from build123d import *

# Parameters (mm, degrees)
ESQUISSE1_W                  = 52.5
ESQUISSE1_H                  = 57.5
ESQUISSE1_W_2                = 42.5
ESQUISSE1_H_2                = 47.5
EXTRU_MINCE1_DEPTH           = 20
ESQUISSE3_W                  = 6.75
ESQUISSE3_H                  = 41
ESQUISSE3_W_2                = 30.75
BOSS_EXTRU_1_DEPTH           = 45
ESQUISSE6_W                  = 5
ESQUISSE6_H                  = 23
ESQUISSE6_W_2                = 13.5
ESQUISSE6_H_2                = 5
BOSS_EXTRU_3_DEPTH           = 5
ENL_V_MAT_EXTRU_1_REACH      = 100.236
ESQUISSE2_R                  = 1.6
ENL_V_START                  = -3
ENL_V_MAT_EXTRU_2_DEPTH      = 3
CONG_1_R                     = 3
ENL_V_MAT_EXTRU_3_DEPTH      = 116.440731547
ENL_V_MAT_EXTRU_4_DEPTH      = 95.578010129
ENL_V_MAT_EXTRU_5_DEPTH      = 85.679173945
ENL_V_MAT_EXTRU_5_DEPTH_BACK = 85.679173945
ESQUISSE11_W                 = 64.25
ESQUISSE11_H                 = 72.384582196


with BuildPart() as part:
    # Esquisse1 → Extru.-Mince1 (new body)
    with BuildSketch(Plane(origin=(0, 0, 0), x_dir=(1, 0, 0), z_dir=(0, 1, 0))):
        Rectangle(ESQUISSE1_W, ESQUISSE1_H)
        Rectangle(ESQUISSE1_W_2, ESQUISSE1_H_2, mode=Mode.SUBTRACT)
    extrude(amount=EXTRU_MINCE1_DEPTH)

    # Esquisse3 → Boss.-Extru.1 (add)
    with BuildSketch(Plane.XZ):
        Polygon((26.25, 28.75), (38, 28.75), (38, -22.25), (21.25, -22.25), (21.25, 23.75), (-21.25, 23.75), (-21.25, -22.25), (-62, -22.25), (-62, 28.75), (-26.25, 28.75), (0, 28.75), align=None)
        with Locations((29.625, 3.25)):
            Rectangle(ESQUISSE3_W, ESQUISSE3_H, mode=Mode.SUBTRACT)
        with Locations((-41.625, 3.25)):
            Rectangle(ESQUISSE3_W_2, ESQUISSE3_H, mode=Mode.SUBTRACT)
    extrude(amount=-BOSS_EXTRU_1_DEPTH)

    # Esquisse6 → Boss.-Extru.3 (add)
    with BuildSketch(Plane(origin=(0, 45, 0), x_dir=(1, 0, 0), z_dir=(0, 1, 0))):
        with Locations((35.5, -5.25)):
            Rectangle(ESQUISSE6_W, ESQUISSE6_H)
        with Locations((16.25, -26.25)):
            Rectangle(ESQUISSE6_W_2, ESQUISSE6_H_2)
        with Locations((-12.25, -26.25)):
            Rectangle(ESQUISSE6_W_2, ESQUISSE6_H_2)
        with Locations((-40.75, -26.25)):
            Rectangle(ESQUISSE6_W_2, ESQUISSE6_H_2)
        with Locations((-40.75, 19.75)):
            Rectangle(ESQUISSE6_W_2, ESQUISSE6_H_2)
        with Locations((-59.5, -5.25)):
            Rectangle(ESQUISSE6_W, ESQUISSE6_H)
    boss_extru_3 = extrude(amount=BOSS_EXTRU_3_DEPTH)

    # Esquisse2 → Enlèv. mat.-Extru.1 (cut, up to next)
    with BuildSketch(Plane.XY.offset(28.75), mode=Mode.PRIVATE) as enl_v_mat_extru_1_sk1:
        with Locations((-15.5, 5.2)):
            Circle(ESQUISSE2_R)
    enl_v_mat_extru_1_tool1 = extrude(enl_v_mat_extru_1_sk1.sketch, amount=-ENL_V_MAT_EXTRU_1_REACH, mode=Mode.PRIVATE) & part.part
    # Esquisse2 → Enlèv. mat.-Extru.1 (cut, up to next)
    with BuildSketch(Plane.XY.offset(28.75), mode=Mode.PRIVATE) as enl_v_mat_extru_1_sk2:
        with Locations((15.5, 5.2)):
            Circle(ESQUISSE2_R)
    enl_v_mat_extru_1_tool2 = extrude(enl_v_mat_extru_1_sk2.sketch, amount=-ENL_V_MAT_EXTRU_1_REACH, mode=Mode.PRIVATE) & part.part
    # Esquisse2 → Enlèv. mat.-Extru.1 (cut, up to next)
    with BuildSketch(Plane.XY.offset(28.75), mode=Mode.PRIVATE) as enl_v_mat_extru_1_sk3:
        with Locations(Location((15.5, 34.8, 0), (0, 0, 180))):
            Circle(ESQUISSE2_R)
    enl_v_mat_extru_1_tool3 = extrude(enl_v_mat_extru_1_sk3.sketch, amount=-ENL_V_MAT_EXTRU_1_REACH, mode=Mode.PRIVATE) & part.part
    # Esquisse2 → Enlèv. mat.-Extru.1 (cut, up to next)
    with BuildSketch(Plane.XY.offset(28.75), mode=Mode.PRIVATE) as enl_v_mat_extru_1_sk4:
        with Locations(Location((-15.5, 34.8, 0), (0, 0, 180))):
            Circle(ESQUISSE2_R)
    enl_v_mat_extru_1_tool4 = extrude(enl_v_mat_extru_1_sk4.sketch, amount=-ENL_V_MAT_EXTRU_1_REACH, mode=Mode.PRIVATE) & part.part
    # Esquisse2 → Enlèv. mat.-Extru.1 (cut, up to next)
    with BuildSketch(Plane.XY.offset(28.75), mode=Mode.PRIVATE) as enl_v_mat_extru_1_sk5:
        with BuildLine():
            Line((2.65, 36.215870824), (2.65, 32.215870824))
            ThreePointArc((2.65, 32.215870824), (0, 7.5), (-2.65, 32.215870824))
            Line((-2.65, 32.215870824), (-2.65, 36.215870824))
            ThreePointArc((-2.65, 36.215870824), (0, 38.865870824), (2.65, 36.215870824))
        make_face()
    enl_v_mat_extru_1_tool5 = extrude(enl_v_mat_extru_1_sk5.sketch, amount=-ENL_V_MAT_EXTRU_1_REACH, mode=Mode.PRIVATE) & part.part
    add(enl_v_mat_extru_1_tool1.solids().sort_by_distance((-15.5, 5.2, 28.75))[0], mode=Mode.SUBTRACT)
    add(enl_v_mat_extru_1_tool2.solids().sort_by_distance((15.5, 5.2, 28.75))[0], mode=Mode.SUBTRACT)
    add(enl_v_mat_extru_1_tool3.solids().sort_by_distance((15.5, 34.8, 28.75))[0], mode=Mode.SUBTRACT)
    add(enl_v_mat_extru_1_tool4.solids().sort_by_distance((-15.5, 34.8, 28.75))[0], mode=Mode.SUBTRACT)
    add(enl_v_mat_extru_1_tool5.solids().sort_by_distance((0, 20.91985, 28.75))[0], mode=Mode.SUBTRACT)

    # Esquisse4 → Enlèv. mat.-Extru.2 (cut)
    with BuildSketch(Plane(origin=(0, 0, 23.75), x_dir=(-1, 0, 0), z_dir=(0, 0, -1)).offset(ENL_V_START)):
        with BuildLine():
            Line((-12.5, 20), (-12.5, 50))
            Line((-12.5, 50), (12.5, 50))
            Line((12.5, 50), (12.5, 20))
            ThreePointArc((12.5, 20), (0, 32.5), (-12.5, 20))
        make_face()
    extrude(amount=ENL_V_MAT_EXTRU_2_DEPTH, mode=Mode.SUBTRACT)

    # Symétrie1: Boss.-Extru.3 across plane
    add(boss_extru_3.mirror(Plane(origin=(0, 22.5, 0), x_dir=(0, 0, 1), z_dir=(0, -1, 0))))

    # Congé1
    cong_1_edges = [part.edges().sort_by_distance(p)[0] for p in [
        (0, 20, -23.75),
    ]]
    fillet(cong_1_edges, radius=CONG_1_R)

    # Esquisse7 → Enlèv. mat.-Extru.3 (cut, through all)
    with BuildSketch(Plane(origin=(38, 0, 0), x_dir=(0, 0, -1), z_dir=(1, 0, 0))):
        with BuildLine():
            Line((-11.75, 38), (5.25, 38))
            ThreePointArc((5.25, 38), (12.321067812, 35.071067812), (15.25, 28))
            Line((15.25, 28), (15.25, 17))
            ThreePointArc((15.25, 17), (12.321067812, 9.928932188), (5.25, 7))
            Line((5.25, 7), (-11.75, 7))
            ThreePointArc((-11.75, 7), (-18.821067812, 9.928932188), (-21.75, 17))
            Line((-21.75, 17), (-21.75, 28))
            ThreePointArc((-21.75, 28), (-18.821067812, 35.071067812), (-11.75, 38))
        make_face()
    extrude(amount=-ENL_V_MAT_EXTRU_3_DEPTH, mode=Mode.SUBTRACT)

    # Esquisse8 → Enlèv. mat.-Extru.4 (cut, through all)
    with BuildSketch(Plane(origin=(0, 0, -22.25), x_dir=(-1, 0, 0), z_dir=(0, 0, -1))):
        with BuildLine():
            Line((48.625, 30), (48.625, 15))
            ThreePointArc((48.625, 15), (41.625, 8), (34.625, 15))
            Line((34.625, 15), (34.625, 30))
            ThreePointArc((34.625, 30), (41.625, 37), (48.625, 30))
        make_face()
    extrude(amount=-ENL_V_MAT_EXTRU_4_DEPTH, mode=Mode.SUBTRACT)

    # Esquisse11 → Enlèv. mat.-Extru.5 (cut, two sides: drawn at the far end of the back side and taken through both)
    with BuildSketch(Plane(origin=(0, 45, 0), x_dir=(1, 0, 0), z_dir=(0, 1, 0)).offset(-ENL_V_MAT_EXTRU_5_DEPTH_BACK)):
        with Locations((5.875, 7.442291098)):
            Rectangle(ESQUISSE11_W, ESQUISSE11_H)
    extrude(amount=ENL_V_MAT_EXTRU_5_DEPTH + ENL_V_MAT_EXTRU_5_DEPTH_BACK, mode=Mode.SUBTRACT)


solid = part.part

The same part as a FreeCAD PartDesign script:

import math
import FreeCAD as App
import Part
import Sketcher
Q = App.Units.Quantity


def edges_at(feature, points):
    """Names of the edges that pass closest to the given points."""
    edges = feature.Shape.Edges
    near = lambda p: min(range(len(edges)), key=lambda i: edges[i].distToShape(Part.Vertex(*p))[0])
    return sorted({f"Edge{near(p) + 1}" for p in points})

doc = App.newDocument("Part")
body = doc.addObject("PartDesign::Body", "Body")

sketch1 = body.newObject("Sketcher::SketchObject", "Sketch")
sketch1.AttachmentSupport = (doc.getObject("XZ_Plane"), [""])
sketch1.MapMode = "FlatFace"
sketch1.addGeometry([
    Part.LineSegment(App.Vector(-26, -29, 0), App.Vector(-26, 29, 0)),
    Part.LineSegment(App.Vector(-26, 29, 0), App.Vector(26, 29, 0)),
    Part.LineSegment(App.Vector(26, 29, 0), App.Vector(26, -29, 0)),
    Part.LineSegment(App.Vector(26, -29, 0), App.Vector(-26, -29, 0)),
    Part.LineSegment(App.Vector(21, 24, 0), App.Vector(-21, 24, 0)),
    Part.LineSegment(App.Vector(-21, 24, 0), App.Vector(-21, -24, 0)),
    Part.LineSegment(App.Vector(-21, -24, 0), App.Vector(21, -24, 0)),
    Part.LineSegment(App.Vector(21, -24, 0), App.Vector(21, 24, 0)),
], False)
sketch1.addConstraint([
    Sketcher.Constraint("Coincident", 0, 2, 1, 1),
    Sketcher.Constraint("Coincident", 1, 2, 2, 1),
    Sketcher.Constraint("Coincident", 2, 2, 3, 1),
    Sketcher.Constraint("Coincident", 3, 2, 0, 1),
    Sketcher.Constraint("Coincident", 4, 2, 5, 1),
    Sketcher.Constraint("Coincident", 5, 2, 6, 1),
    Sketcher.Constraint("Coincident", 6, 2, 7, 1),
    Sketcher.Constraint("Coincident", 7, 2, 4, 1),
    Sketcher.Constraint("Vertical", 0),
    Sketcher.Constraint("Horizontal", 1),
    Sketcher.Constraint("Vertical", 2),
    Sketcher.Constraint("Horizontal", 3),
    Sketcher.Constraint("Horizontal", 4),
    Sketcher.Constraint("Vertical", 5),
    Sketcher.Constraint("Horizontal", 6),
    Sketcher.Constraint("Vertical", 7),
    Sketcher.Constraint("Symmetric", 0, 2, 2, 2, -1, 1),
    Sketcher.Constraint("Symmetric", 4, 2, 6, 2, -1, 1),
    Sketcher.Constraint("DistanceX", 1, 1, 1, 2, Q("52.5 mm")),
    Sketcher.Constraint("DistanceX", 4, 2, 4, 1, Q("42.5 mm")),
    Sketcher.Constraint("DistanceY", 0, 1, 0, 2, Q("57.5 mm")),
    Sketcher.Constraint("DistanceY", 5, 2, 5, 1, Q("47.5 mm")),
])
pad1 = body.newObject("PartDesign::Pad", "Pad")
pad1.Profile = sketch1
pad1.Length = 20
pad1.Reversed = True

sketch2 = body.newObject("Sketcher::SketchObject", "Sketch001")
sketch2.AttachmentSupport = (doc.getObject("XZ_Plane"), [""])
sketch2.MapMode = "FlatFace"
sketch2.addGeometry([
    Part.LineSegment(App.Vector(38, 29, 0), App.Vector(-62, 29, 0)),
    Part.LineSegment(App.Vector(-62, 29, 0), App.Vector(-62, -22, 0)),
    Part.LineSegment(App.Vector(-62, -22, 0), App.Vector(-21, -22, 0)),
    Part.LineSegment(App.Vector(-21, -22, 0), App.Vector(-21, 24, 0)),
    Part.LineSegment(App.Vector(-21, 24, 0), App.Vector(21, 24, 0)),
    Part.LineSegment(App.Vector(21, 24, 0), App.Vector(21, -22, 0)),
    Part.LineSegment(App.Vector(21, -22, 0), App.Vector(38, -22, 0)),
    Part.LineSegment(App.Vector(38, -22, 0), App.Vector(38, 29, 0)),
    Part.LineSegment(App.Vector(26, -17, 0), App.Vector(26, 24, 0)),
    Part.LineSegment(App.Vector(26, 24, 0), App.Vector(33, 24, 0)),
    Part.LineSegment(App.Vector(33, 24, 0), App.Vector(33, -17, 0)),
    Part.LineSegment(App.Vector(33, -17, 0), App.Vector(26, -17, 0)),
    Part.LineSegment(App.Vector(-57, -17, 0), App.Vector(-57, 24, 0)),
    Part.LineSegment(App.Vector(-57, 24, 0), App.Vector(-26, 24, 0)),
    Part.LineSegment(App.Vector(-26, 24, 0), App.Vector(-26, -17, 0)),
    Part.LineSegment(App.Vector(-26, -17, 0), App.Vector(-57, -17, 0)),
], False)
sketch2.addConstraint([
    Sketcher.Constraint("Coincident", 0, 2, 1, 1),
    Sketcher.Constraint("Coincident", 1, 2, 2, 1),
    Sketcher.Constraint("Coincident", 2, 2, 3, 1),
    Sketcher.Constraint("Coincident", 3, 2, 4, 1),
    Sketcher.Constraint("Coincident", 4, 2, 5, 1),
    Sketcher.Constraint("Coincident", 5, 2, 6, 1),
    Sketcher.Constraint("Coincident", 6, 2, 7, 1),
    Sketcher.Constraint("Coincident", 7, 2, 0, 1),
    Sketcher.Constraint("Coincident", 8, 2, 9, 1),
    Sketcher.Constraint("Coincident", 9, 2, 10, 1),
    Sketcher.Constraint("Coincident", 10, 2, 11, 1),
    Sketcher.Constraint("Coincident", 11, 2, 8, 1),
    Sketcher.Constraint("Coincident", 12, 2, 13, 1),
    Sketcher.Constraint("Coincident", 13, 2, 14, 1),
    Sketcher.Constraint("Coincident", 14, 2, 15, 1),
    Sketcher.Constraint("Coincident", 15, 2, 12, 1),
    Sketcher.Constraint("Horizontal", 0),
    Sketcher.Constraint("Vertical", 1),
    Sketcher.Constraint("Horizontal", 2),
    Sketcher.Constraint("Vertical", 3),
    Sketcher.Constraint("Horizontal", 4),
    Sketcher.Constraint("Vertical", 5),
    Sketcher.Constraint("Horizontal", 6),
    Sketcher.Constraint("Vertical", 7),
    Sketcher.Constraint("Vertical", 8),
    Sketcher.Constraint("Horizontal", 9),
    Sketcher.Constraint("Vertical", 10),
    Sketcher.Constraint("Horizontal", 11),
    Sketcher.Constraint("Vertical", 12),
    Sketcher.Constraint("Horizontal", 13),
    Sketcher.Constraint("Vertical", 14),
    Sketcher.Constraint("Horizontal", 15),
    Sketcher.Constraint("Symmetric", 2, 2, 5, 2, -2),
    Sketcher.Constraint("Symmetric", 8, 2, 13, 2, -2),
    Sketcher.Constraint("Horizontal", 4, 2, 8, 2),
    Sketcher.Constraint("Horizontal", 11, 2, 14, 2),
    Sketcher.Constraint("DistanceX", 0, 2, 0, 1, Q("100 mm")),
    Sketcher.Constraint("DistanceY", 1, 2, 1, 1, Q("51 mm")),
    Sketcher.Constraint("DistanceY", 3, 1, 3, 2, Q("46 mm")),
    Sketcher.Constraint("DistanceY", 8, 1, 8, 2, Q("41 mm")),
    Sketcher.Constraint("DistanceX", 4, 1, 4, 2, Q("42.5 mm")),
    Sketcher.Constraint("DistanceX", 0, 2, -1, 1, Q("62 mm")),
    Sketcher.Constraint("DistanceX", -1, 1, 9, 2, Q("33 mm")),
    Sketcher.Constraint("DistanceX", 12, 2, -1, 1, Q("57 mm")),
    Sketcher.Constraint("DistanceX", 4, 2, 8, 2, Q("5 mm")),
    Sketcher.Constraint("DistanceY", -1, 1, 0, 2, Q("28.75 mm")),
])
pad2 = body.newObject("PartDesign::Pad", "Pad001")
pad2.Profile = sketch2
pad2.Length = 45
pad2.Reversed = True

sketch3 = body.newObject("Sketcher::SketchObject", "Sketch002")
sketch3.AttachmentSupport = (doc.getObject("XZ_Plane"), [""])
sketch3.MapMode = "FlatFace"
sketch3.AttachmentOffset = App.Placement(App.Vector(0, 0, -45), App.Rotation())
sketch3.addGeometry([
    Part.LineSegment(App.Vector(33, -6, 0), App.Vector(33, 17, 0)),
    Part.LineSegment(App.Vector(33, 17, 0), App.Vector(38, 17, 0)),
    Part.LineSegment(App.Vector(38, 17, 0), App.Vector(38, -6, 0)),
    Part.LineSegment(App.Vector(38, -6, 0), App.Vector(33, -6, 0)),
    Part.LineSegment(App.Vector(10, 24, 0), App.Vector(10, 29, 0)),
    Part.LineSegment(App.Vector(10, 29, 0), App.Vector(23, 29, 0)),
    Part.LineSegment(App.Vector(23, 29, 0), App.Vector(23, 24, 0)),
    Part.LineSegment(App.Vector(23, 24, 0), App.Vector(10, 24, 0)),
    Part.LineSegment(App.Vector(-19, 24, 0), App.Vector(-19, 29, 0)),
    Part.LineSegment(App.Vector(-19, 29, 0), App.Vector(-6, 29, 0)),
    Part.LineSegment(App.Vector(-6, 29, 0), App.Vector(-6, 24, 0)),
    Part.LineSegment(App.Vector(-6, 24, 0), App.Vector(-19, 24, 0)),
    Part.LineSegment(App.Vector(-48, 24, 0), App.Vector(-48, 29, 0)),
    Part.LineSegment(App.Vector(-48, 29, 0), App.Vector(-34, 29, 0)),
    Part.LineSegment(App.Vector(-34, 29, 0), App.Vector(-34, 24, 0)),
    Part.LineSegment(App.Vector(-34, 24, 0), App.Vector(-48, 24, 0)),
    Part.LineSegment(App.Vector(-48, -22, 0), App.Vector(-48, -17, 0)),
    Part.LineSegment(App.Vector(-48, -17, 0), App.Vector(-34, -17, 0)),
    Part.LineSegment(App.Vector(-34, -17, 0), App.Vector(-34, -22, 0)),
    Part.LineSegment(App.Vector(-34, -22, 0), App.Vector(-48, -22, 0)),
    Part.LineSegment(App.Vector(-62, -6, 0), App.Vector(-62, 17, 0)),
    Part.LineSegment(App.Vector(-62, 17, 0), App.Vector(-57, 17, 0)),
    Part.LineSegment(App.Vector(-57, 17, 0), App.Vector(-57, -6, 0)),
    Part.LineSegment(App.Vector(-57, -6, 0), App.Vector(-62, -6, 0)),
], False)
sketch3.addConstraint([
    Sketcher.Constraint("Coincident", 0, 2, 1, 1),
    Sketcher.Constraint("Coincident", 1, 2, 2, 1),
    Sketcher.Constraint("Coincident", 2, 2, 3, 1),
    Sketcher.Constraint("Coincident", 3, 2, 0, 1),
    Sketcher.Constraint("Coincident", 4, 2, 5, 1),
    Sketcher.Constraint("Coincident", 5, 2, 6, 1),
    Sketcher.Constraint("Coincident", 6, 2, 7, 1),
    Sketcher.Constraint("Coincident", 7, 2, 4, 1),
    Sketcher.Constraint("Coincident", 8, 2, 9, 1),
    Sketcher.Constraint("Coincident", 9, 2, 10, 1),
    Sketcher.Constraint("Coincident", 10, 2, 11, 1),
    Sketcher.Constraint("Coincident", 11, 2, 8, 1),
    Sketcher.Constraint("Coincident", 12, 2, 13, 1),
    Sketcher.Constraint("Coincident", 13, 2, 14, 1),
    Sketcher.Constraint("Coincident", 14, 2, 15, 1),
    Sketcher.Constraint("Coincident", 15, 2, 12, 1),
    Sketcher.Constraint("Coincident", 16, 2, 17, 1),
    Sketcher.Constraint("Coincident", 17, 2, 18, 1),
    Sketcher.Constraint("Coincident", 18, 2, 19, 1),
    Sketcher.Constraint("Coincident", 19, 2, 16, 1),
    Sketcher.Constraint("Coincident", 20, 2, 21, 1),
    Sketcher.Constraint("Coincident", 21, 2, 22, 1),
    Sketcher.Constraint("Coincident", 22, 2, 23, 1),
    Sketcher.Constraint("Coincident", 23, 2, 20, 1),
    Sketcher.Constraint("Vertical", 0),
    Sketcher.Constraint("Horizontal", 1),
    Sketcher.Constraint("Vertical", 2),
    Sketcher.Constraint("Horizontal", 3),
    Sketcher.Constraint("Vertical", 4),
    Sketcher.Constraint("Horizontal", 5),
    Sketcher.Constraint("Vertical", 6),
    Sketcher.Constraint("Horizontal", 7),
    Sketcher.Constraint("Vertical", 8),
    Sketcher.Constraint("Horizontal", 9),
    Sketcher.Constraint("Vertical", 10),
    Sketcher.Constraint("Horizontal", 11),
    Sketcher.Constraint("Vertical", 12),
    Sketcher.Constraint("Horizontal", 13),
    Sketcher.Constraint("Vertical", 14),
    Sketcher.Constraint("Horizontal", 15),
    Sketcher.Constraint("Vertical", 16),
    Sketcher.Constraint("Horizontal", 17),
    Sketcher.Constraint("Vertical", 18),
    Sketcher.Constraint("Horizontal", 19),
    Sketcher.Constraint("Vertical", 20),
    Sketcher.Constraint("Horizontal", 21),
    Sketcher.Constraint("Vertical", 22),
    Sketcher.Constraint("Horizontal", 23),
    Sketcher.Constraint("Horizontal", 5, 2, 8, 2),
    Sketcher.Constraint("Horizontal", 7, 2, 10, 2),
    Sketcher.Constraint("Horizontal", 9, 2, 12, 2),
    Sketcher.Constraint("Horizontal", 11, 2, 14, 2),
    Sketcher.Constraint("Horizontal", 1, 2, 20, 2),
    Sketcher.Constraint("Horizontal", 3, 2, 22, 2),
    Sketcher.Constraint("Vertical", 15, 2, 16, 2),
    Sketcher.Constraint("Vertical", 14, 2, 17, 2),
    Sketcher.Constraint("Equal", 7, 9),
    Sketcher.Constraint("Equal", 11, 13),
    Sketcher.Constraint("Equal", 3, 21),
    Sketcher.Constraint("Equal", 23, 4),
    Sketcher.Constraint("Equal", 14, 16),
    Sketcher.Constraint("DistanceX", 1, 1, 1, 2, Q("5 mm")),
    Sketcher.Constraint("DistanceY", 0, 1, 0, 2, Q("23 mm")),
    Sketcher.Constraint("DistanceX", 5, 1, 5, 2, Q("13.5 mm")),
    Sketcher.Constraint("DistanceX", -1, 1, 0, 2, Q("33 mm")),
    Sketcher.Constraint("DistanceX", -1, 1, 5, 2, Q("23 mm")),
    Sketcher.Constraint("DistanceX", 8, 2, -1, 1, Q("19 mm")),
    Sketcher.Constraint("DistanceX", 13, 2, -1, 1, Q("34 mm")),
    Sketcher.Constraint("DistanceX", 20, 2, -1, 1, Q("62 mm")),
    Sketcher.Constraint("DistanceY", 0, 2, 4, 2, Q("12 mm")),
    Sketcher.Constraint("DistanceY", 16, 2, 15, 2, Q("41 mm")),
    Sketcher.Constraint("DistanceY", -1, 1, 0, 2, Q("16.75 mm")),
])
pad3 = body.newObject("PartDesign::Pad", "Pad002")
pad3.Profile = sketch3
pad3.Length = 5
pad3.Reversed = True

sketch4 = body.newObject("Sketcher::SketchObject", "Sketch003")
sketch4.AttachmentSupport = (doc.getObject("XY_Plane"), [""])
sketch4.MapMode = "FlatFace"
sketch4.AttachmentOffset = App.Placement(App.Vector(0, 0, 28.75), App.Rotation())
sketch4.addGeometry(Part.Circle(App.Vector(-15.5, 5.2, 0), App.Vector(0, 0, 1), 1.6), False)
sketch4.addConstraint([
    Sketcher.Constraint("Diameter", 0, Q("3.2 mm")),
    Sketcher.Constraint("DistanceX", 0, 3, -1, 1, Q("15.5 mm")),
    Sketcher.Constraint("DistanceY", -1, 1, 0, 3, Q("5.2 mm")),
])
pocket1 = body.newObject("PartDesign::Pocket", "Pocket")
pocket1.Profile = sketch4
pocket1.Type = "UpToFirst"

sketch5 = body.newObject("Sketcher::SketchObject", "Sketch004")
sketch5.AttachmentSupport = (doc.getObject("XY_Plane"), [""])
sketch5.MapMode = "FlatFace"
sketch5.AttachmentOffset = App.Placement(App.Vector(0, 0, 28.75), App.Rotation())
sketch5.addGeometry(Part.Circle(App.Vector(15.5, 5.2, 0), App.Vector(0, 0, 1), 1.6), False)
sketch5.addConstraint([
    Sketcher.Constraint("Diameter", 0, Q("3.2 mm")),
    Sketcher.Constraint("DistanceX", -1, 1, 0, 3, Q("15.5 mm")),
    Sketcher.Constraint("DistanceY", -1, 1, 0, 3, Q("5.2 mm")),
])
pocket2 = body.newObject("PartDesign::Pocket", "Pocket001")
pocket2.Profile = sketch5
pocket2.Type = "UpToFirst"

sketch6 = body.newObject("Sketcher::SketchObject", "Sketch005")
sketch6.AttachmentSupport = (doc.getObject("XY_Plane"), [""])
sketch6.MapMode = "FlatFace"
sketch6.AttachmentOffset = App.Placement(App.Vector(0, 0, 28.75), App.Rotation())
sketch6.addGeometry(Part.Circle(App.Vector(15.5, 34.8, 0), App.Vector(0, 0, 1), 1.6), False)
sketch6.addConstraint([
    Sketcher.Constraint("Diameter", 0, Q("3.2 mm")),
    Sketcher.Constraint("DistanceX", -1, 1, 0, 3, Q("15.5 mm")),
    Sketcher.Constraint("DistanceY", -1, 1, 0, 3, Q("34.8 mm")),
])
pocket3 = body.newObject("PartDesign::Pocket", "Pocket002")
pocket3.Profile = sketch6
pocket3.Type = "UpToFirst"

sketch7 = body.newObject("Sketcher::SketchObject", "Sketch006")
sketch7.AttachmentSupport = (doc.getObject("XY_Plane"), [""])
sketch7.MapMode = "FlatFace"
sketch7.AttachmentOffset = App.Placement(App.Vector(0, 0, 28.75), App.Rotation())
sketch7.addGeometry(Part.Circle(App.Vector(-15.5, 34.8, 0), App.Vector(0, 0, 1), 1.6), False)
sketch7.addConstraint([
    Sketcher.Constraint("Diameter", 0, Q("3.2 mm")),
    Sketcher.Constraint("DistanceX", 0, 3, -1, 1, Q("15.5 mm")),
    Sketcher.Constraint("DistanceY", -1, 1, 0, 3, Q("34.8 mm")),
])
pocket4 = body.newObject("PartDesign::Pocket", "Pocket003")
pocket4.Profile = sketch7
pocket4.Type = "UpToFirst"

sketch8 = body.newObject("Sketcher::SketchObject", "Sketch007")
sketch8.AttachmentSupport = (doc.getObject("XY_Plane"), [""])
sketch8.MapMode = "FlatFace"
sketch8.AttachmentOffset = App.Placement(App.Vector(0, 0, 28.75), App.Rotation())
sketch8.addGeometry([
    Part.LineSegment(App.Vector(2.6, 32.2, 0), App.Vector(2.6, 36.2, 0)),
    Part.ArcOfCircle(Part.Circle(App.Vector(0, 36.2, 0), App.Vector(0, 0, 1), 2.6), math.radians(0), math.radians(180)),
    Part.LineSegment(App.Vector(-2.6, 36.2, 0), App.Vector(-2.6, 32.2, 0)),
    Part.ArcOfCircle(Part.Circle(App.Vector(0, 20, 0), App.Vector(0, 0, 1), 12.5), math.radians(102), math.radians(438)),
], False)
sketch8.addConstraint([
    Sketcher.Constraint("Tangent", 0, 2, 1, 1),
    Sketcher.Constraint("Tangent", 1, 2, 2, 1),
    Sketcher.Constraint("Coincident", 2, 2, 3, 1),
    Sketcher.Constraint("Coincident", 3, 2, 0, 1),
    Sketcher.Constraint("Vertical", 0),
    Sketcher.Constraint("Vertical", 2),
    Sketcher.Constraint("Symmetric", 2, 2, 3, 2, -2),
    Sketcher.Constraint("Radius", 3, Q("12.5 mm")),
    Sketcher.Constraint("DistanceY", 0, 1, 0, 2, Q("4 mm")),
    Sketcher.Constraint("Radius", 1, Q("2.65 mm")),
    Sketcher.Constraint("DistanceY", -1, 1, 3, 3, Q("20 mm")),
])
pocket5 = body.newObject("PartDesign::Pocket", "Pocket004")
pocket5.Profile = sketch8
pocket5.Type = "UpToFirst"

sketch9 = body.newObject("Sketcher::SketchObject", "Sketch008")
sketch9.AttachmentSupport = (doc.getObject("XY_Plane"), [""])
sketch9.MapMode = "FlatFace"
sketch9.AttachmentOffset = App.Placement(App.Vector(0, 0, 26.75), App.Rotation())
sketch9.addGeometry([
    Part.LineSegment(App.Vector(12, 50, 0), App.Vector(12, 20, 0)),
    Part.ArcOfCircle(Part.Circle(App.Vector(0, 20, 0), App.Vector(0, 0, 1), 12), math.radians(0), math.radians(180)),
    Part.LineSegment(App.Vector(-12, 20, 0), App.Vector(-12, 50, 0)),
    Part.LineSegment(App.Vector(-12, 50, 0), App.Vector(12, 50, 0)),
], False)
sketch9.addConstraint([
    Sketcher.Constraint("Tangent", 0, 2, 1, 1),
    Sketcher.Constraint("Tangent", 1, 2, 2, 1),
    Sketcher.Constraint("Coincident", 2, 2, 3, 1),
    Sketcher.Constraint("Coincident", 3, 2, 0, 1),
    Sketcher.Constraint("Vertical", 0),
    Sketcher.Constraint("Vertical", 2),
    Sketcher.Constraint("Horizontal", 3),
    Sketcher.Constraint("PointOnObject", 1, 3, -2),
    Sketcher.Constraint("Radius", 1, Q("12.5 mm")),
    Sketcher.Constraint("DistanceY", 0, 2, 0, 1, Q("30 mm")),
    Sketcher.Constraint("DistanceY", -1, 1, 1, 3, Q("20 mm")),
])
pocket6 = body.newObject("PartDesign::Pocket", "Pocket005")
pocket6.Profile = sketch9
pocket6.Length = 3
doc.recompute()

datumplane = body.newObject("PartDesign::Plane", "DatumPlane")
datumplane.AttachmentSupport = (doc.getObject("XZ_Plane"), [""])
datumplane.MapMode = "FlatFace"
datumplane.AttachmentOffset = App.Placement(App.Vector(0, 0, -22.5), App.Rotation())
mirrored = body.newObject("PartDesign::Mirrored", "Mirrored")
mirrored.Originals = [pad3]
mirrored.MirrorPlane = (datumplane, [""])
body.Tip = mirrored
doc.recompute()

fillet = body.newObject("PartDesign::Fillet", "Fillet")
fillet.Base = (mirrored, edges_at(mirrored, [(0, 20, -23.75)]))
fillet.Radius = 3

sketch10 = body.newObject("Sketcher::SketchObject", "Sketch009")
sketch10.AttachmentSupport = (doc.getObject("YZ_Plane"), [""])
sketch10.MapMode = "FlatFace"
sketch10.AttachmentOffset = App.Placement(App.Vector(0, 0, 38), App.Rotation())
sketch10.addGeometry([
    Part.LineSegment(App.Vector(38, -5, 0), App.Vector(38, 12, 0)),
    Part.ArcOfCircle(Part.Circle(App.Vector(28, 12, 0), App.Vector(0, 0, 1), 10), math.radians(0), math.radians(90)),
    Part.LineSegment(App.Vector(28, 22, 0), App.Vector(17, 22, 0)),
    Part.ArcOfCircle(Part.Circle(App.Vector(17, 12, 0), App.Vector(0, 0, 1), 10), math.radians(90), math.radians(180)),
    Part.LineSegment(App.Vector(7, 12, 0), App.Vector(7, -5, 0)),
    Part.ArcOfCircle(Part.Circle(App.Vector(17, -5, 0), App.Vector(0, 0, 1), 10), math.radians(180), math.radians(270)),
    Part.LineSegment(App.Vector(17, -15, 0), App.Vector(28, -15, 0)),
    Part.ArcOfCircle(Part.Circle(App.Vector(28, -5, 0), App.Vector(0, 0, 1), 10), math.radians(-90), math.radians(0)),
], False)
sketch10.addConstraint([
    Sketcher.Constraint("Tangent", 0, 2, 1, 1),
    Sketcher.Constraint("Tangent", 1, 2, 2, 1),
    Sketcher.Constraint("Tangent", 2, 2, 3, 1),
    Sketcher.Constraint("Tangent", 3, 2, 4, 1),
    Sketcher.Constraint("Tangent", 4, 2, 5, 1),
    Sketcher.Constraint("Tangent", 5, 2, 6, 1),
    Sketcher.Constraint("Tangent", 6, 2, 7, 1),
    Sketcher.Constraint("Tangent", 7, 2, 0, 1),
    Sketcher.Constraint("Vertical", 0),
    Sketcher.Constraint("Horizontal", 2),
    Sketcher.Constraint("Vertical", 4),
    Sketcher.Constraint("Horizontal", 6),
    Sketcher.Constraint("Equal", 1, 3),
    Sketcher.Constraint("Equal", 3, 5),
    Sketcher.Constraint("Equal", 5, 7),
    Sketcher.Constraint("Radius", 1, Q("10 mm")),
    Sketcher.Constraint("DistanceX", 2, 2, 2, 1, Q("11 mm")),
    Sketcher.Constraint("DistanceY", 0, 1, 0, 2, Q("17 mm")),
    Sketcher.Constraint("DistanceX", -1, 1, 1, 3, Q("28 mm")),
    Sketcher.Constraint("DistanceY", -1, 1, 1, 3, Q("11.75 mm")),
])
pocket7 = body.newObject("PartDesign::Pocket", "Pocket006")
pocket7.Profile = sketch10
pocket7.Type = "ThroughAll"

sketch11 = body.newObject("Sketcher::SketchObject", "Sketch010")
sketch11.AttachmentSupport = (doc.getObject("XY_Plane"), [""])
sketch11.MapMode = "FlatFace"
sketch11.AttachmentOffset = App.Placement(App.Vector(0, 0, -22.25), App.Rotation())
sketch11.addGeometry([
    Part.LineSegment(App.Vector(-49, 15, 0), App.Vector(-49, 30, 0)),
    Part.ArcOfCircle(Part.Circle(App.Vector(-42, 30, 0), App.Vector(0, 0, 1), 7), math.radians(0), math.radians(180)),
    Part.LineSegment(App.Vector(-35, 30, 0), App.Vector(-35, 15, 0)),
    Part.ArcOfCircle(Part.Circle(App.Vector(-42, 15, 0), App.Vector(0, 0, 1), 7), math.radians(180), math.radians(360)),
], False)
sketch11.addConstraint([
    Sketcher.Constraint("Tangent", 0, 2, 1, 2),
    Sketcher.Constraint("Tangent", 1, 1, 2, 1),
    Sketcher.Constraint("Tangent", 2, 2, 3, 2),
    Sketcher.Constraint("Tangent", 3, 1, 0, 1),
    Sketcher.Constraint("Vertical", 0),
    Sketcher.Constraint("Vertical", 2),
    Sketcher.Constraint("Radius", 1, Q("7 mm")),
    Sketcher.Constraint("DistanceY", 0, 1, 0, 2, Q("15 mm")),
    Sketcher.Constraint("DistanceY", -1, 1, 1, 3, Q("30 mm")),
    Sketcher.Constraint("DistanceX", 1, 3, -1, 1, Q("41.625 mm")),
])
pocket8 = body.newObject("PartDesign::Pocket", "Pocket007")
pocket8.Profile = sketch11
pocket8.Type = "ThroughAll"
pocket8.Reversed = True

sketch12 = body.newObject("Sketcher::SketchObject", "Sketch011")
sketch12.AttachmentSupport = (doc.getObject("XZ_Plane"), [""])
sketch12.MapMode = "FlatFace"
sketch12.AttachmentOffset = App.Placement(App.Vector(0, 0, -45), App.Rotation())
sketch12.addGeometry([
    Part.LineSegment(App.Vector(-26, -44, 0), App.Vector(-26, 29, 0)),
    Part.LineSegment(App.Vector(-26, 29, 0), App.Vector(38, 29, 0)),
    Part.LineSegment(App.Vector(38, 29, 0), App.Vector(38, -44, 0)),
    Part.LineSegment(App.Vector(38, -44, 0), App.Vector(-26, -44, 0)),
], False)
sketch12.addConstraint([
    Sketcher.Constraint("Coincident", 0, 2, 1, 1),
    Sketcher.Constraint("Coincident", 1, 2, 2, 1),
    Sketcher.Constraint("Coincident", 2, 2, 3, 1),
    Sketcher.Constraint("Coincident", 3, 2, 0, 1),
    Sketcher.Constraint("Vertical", 0),
    Sketcher.Constraint("Horizontal", 1),
    Sketcher.Constraint("Vertical", 2),
    Sketcher.Constraint("Horizontal", 3),
    Sketcher.Constraint("DistanceX", -1, 1, 1, 2, Q("38 mm")),
    Sketcher.Constraint("DistanceX", 1, 1, 1, 2, Q("64.25 mm")),
    Sketcher.Constraint("DistanceY", -1, 1, 0, 2, Q("28.75 mm")),
    Sketcher.Constraint("DistanceY", 0, 1, 0, 2, Q("72.384582 mm")),
])
pocket9 = body.newObject("PartDesign::Pocket", "Pocket008")
pocket9.Profile = sketch12
pocket9.Type = "ThroughAll"
pocket9.Midplane = True

doc.recompute()
